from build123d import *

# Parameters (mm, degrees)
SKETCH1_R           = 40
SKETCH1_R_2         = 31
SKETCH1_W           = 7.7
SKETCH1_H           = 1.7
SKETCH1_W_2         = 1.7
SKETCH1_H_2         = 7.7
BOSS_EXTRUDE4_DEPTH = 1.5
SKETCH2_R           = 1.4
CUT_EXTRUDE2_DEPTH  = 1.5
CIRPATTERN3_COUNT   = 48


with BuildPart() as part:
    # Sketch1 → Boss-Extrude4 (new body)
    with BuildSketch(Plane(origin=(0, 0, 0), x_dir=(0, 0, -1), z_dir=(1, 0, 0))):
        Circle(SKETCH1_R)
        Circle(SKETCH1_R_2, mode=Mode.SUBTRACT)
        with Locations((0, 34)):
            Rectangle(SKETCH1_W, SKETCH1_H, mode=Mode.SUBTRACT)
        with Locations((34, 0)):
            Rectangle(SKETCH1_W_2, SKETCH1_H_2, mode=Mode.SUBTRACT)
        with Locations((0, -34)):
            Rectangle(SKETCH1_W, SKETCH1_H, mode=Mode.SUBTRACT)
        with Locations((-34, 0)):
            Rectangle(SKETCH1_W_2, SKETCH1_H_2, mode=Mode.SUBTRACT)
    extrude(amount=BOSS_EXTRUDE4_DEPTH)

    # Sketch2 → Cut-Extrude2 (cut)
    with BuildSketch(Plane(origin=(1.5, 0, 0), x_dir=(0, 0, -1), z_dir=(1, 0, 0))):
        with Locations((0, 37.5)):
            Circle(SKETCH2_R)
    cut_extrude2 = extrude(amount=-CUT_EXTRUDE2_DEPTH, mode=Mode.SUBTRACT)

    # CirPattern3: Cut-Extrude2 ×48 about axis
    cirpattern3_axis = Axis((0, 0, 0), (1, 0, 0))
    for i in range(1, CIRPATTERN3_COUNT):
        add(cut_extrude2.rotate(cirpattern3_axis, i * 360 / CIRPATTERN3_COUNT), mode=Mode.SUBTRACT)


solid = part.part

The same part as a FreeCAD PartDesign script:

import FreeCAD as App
import Part
import Sketcher
Q = App.Units.Quantity


def add_polygon(sketch, points):
    """Adds a closed chain of lines whose ends are joined by coincident constraints."""
    first, n = sketch.GeometryCount, len(points)
    for a, b in zip(points, points[1:] + points[:1]):
        sketch.addGeometry(Part.LineSegment(App.Vector(*a, 0), App.Vector(*b, 0)), False)
    for i in range(n):
        sketch.addConstraint(Sketcher.Constraint("Coincident", first + i, 2, first + (i + 1) % n, 1))

doc = App.newDocument("Part")
body = doc.addObject("PartDesign::Body", "Body")

sketch1 = doc.addObject("Sketcher::SketchObject", "Sketch")
body.addObject(sketch1)
sketch1.AttachmentSupport = (doc.YZ_Plane, [""])
sketch1.MapMode = "FlatFace"
sketch1.addGeometry(Part.Circle(App.Vector(0, 0, 0), App.Vector(0, 0, 1), 40), False)
add_polygon(sketch1, [(-34.9, -3.9), (-34.9, 3.9), (-33.1, 3.9), (-33.1, -3.9)])
sketch1.addGeometry(Part.Circle(App.Vector(0, 0, 0), App.Vector(0, 0, 1), 31), False)
add_polygon(sketch1, [(-3.9, 33.1), (-3.9, 34.9), (3.9, 34.9), (3.9, 33.1)])
add_polygon(sketch1, [(-3.9, -34.9), (-3.9, -33.1), (3.9, -33.1), (3.9, -34.9)])
add_polygon(sketch1, [(33.1, -3.9), (33.1, 3.9), (34.9, 3.9), (34.9, -3.9)])
sketch1.addConstraint(Sketcher.Constraint("Vertical", 1))
sketch1.addConstraint(Sketcher.Constraint("Horizontal", 2))
sketch1.addConstraint(Sketcher.Constraint("Vertical", 3))
sketch1.addConstraint(Sketcher.Constraint("Horizontal", 4))
sketch1.addConstraint(Sketcher.Constraint("Vertical", 6))
sketch1.addConstraint(Sketcher.Constraint("Horizontal", 7))
sketch1.addConstraint(Sketcher.Constraint("Vertical", 8))
sketch1.addConstraint(Sketcher.Constraint("Horizontal", 9))
sketch1.addConstraint(Sketcher.Constraint("Vertical", 10))
sketch1.addConstraint(Sketcher.Constraint("Horizontal", 11))
sketch1.addConstraint(Sketcher.Constraint("Vertical", 12))
sketch1.addConstraint(Sketcher.Constraint("Horizontal", 13))
sketch1.addConstraint(Sketcher.Constraint("Vertical", 14))
sketch1.addConstraint(Sketcher.Constraint("Horizontal", 15))
sketch1.addConstraint(Sketcher.Constraint("Vertical", 16))
sketch1.addConstraint(Sketcher.Constraint("Horizontal", 17))
sketch1.addConstraint(Sketcher.Constraint("Coincident", 0, 3, -1, 1))
sketch1.addConstraint(Sketcher.Constraint("Coincident", 5, 3, -1, 1))
sketch1.addConstraint(Sketcher.Constraint("Symmetric", 8, 2, 10, 2, -1, 1))
sketch1.addConstraint(Sketcher.Constraint("Symmetric", 6, 2, 12, 2, -1, 1))
sketch1.addConstraint(Sketcher.Constraint("Symmetric", 3, 2, 14, 2, -1, 1))
sketch1.addConstraint(Sketcher.Constraint("Symmetric", 1, 2, 16, 2, -1, 1))
sketch1.addConstraint(Sketcher.Constraint("Horizontal", 2, 2, 14, 2))
sketch1.addConstraint(Sketcher.Constraint("Vertical", 9, 2, 10, 2))
sketch1.addConstraint(Sketcher.Constraint("Equal", 13, 1))
sketch1.addConstraint(Sketcher.Constraint("Equal", 17, 6))
sketch1.addConstraint(Sketcher.Constraint("Diameter", 0, Q("80 mm")))
sketch1.addConstraint(Sketcher.Constraint("Diameter", 5, Q("62 mm")))
sketch1.addConstraint(Sketcher.Constraint("DistanceX", 2, 1, 2, 2, Q("1.7 mm")))
sketch1.addConstraint(Sketcher.Constraint("DistanceX", 7, 1, 7, 2, Q("7.7 mm")))
sketch1.addConstraint(Sketcher.Constraint("DistanceY", 2, 2, 6, 2, Q("31 mm")))
sketch1.addConstraint(Sketcher.Constraint("DistanceX", 1, 2, 6, 2, Q("31 mm")))
pad1 = doc.addObject("PartDesign::Pad", "Pad")
body.addObject(pad1)
pad1.Profile = sketch1
pad1.Length = 1.5

sketch2 = doc.addObject("Sketcher::SketchObject", "Sketch001")
body.addObject(sketch2)
sketch2.AttachmentSupport = (doc.YZ_Plane, [""])
sketch2.MapMode = "FlatFace"
sketch2.AttachmentOffset = App.Placement(App.Vector(0, 0, 1.5), App.Rotation())
sketch2.addGeometry(Part.Circle(App.Vector(37.5, 0, 0), App.Vector(0, 0, 1), 1.4), False)
sketch2.addConstraint(Sketcher.Constraint("PointOnObject", 0, 3, -1))
sketch2.addConstraint(Sketcher.Constraint("Diameter", 0, Q("2.8 mm")))
sketch2.addConstraint(Sketcher.Constraint("DistanceX", -1, 1, 0, 3, Q("37.5 mm")))
pocket1 = doc.addObject("PartDesign::Pocket", "Pocket")
body.addObject(pocket1)
pocket1.Profile = sketch2
pocket1.Length = 1.5
doc.recompute()

polarpattern = doc.addObject("PartDesign::PolarPattern", "PolarPattern")
body.addObject(polarpattern)
polarpattern.Originals = [pocket1]
polarpattern.Axis = (doc.X_Axis, [""])
polarpattern.Angle = 360
polarpattern.Occurrences = 48
body.Tip = polarpattern

doc.recompute()
